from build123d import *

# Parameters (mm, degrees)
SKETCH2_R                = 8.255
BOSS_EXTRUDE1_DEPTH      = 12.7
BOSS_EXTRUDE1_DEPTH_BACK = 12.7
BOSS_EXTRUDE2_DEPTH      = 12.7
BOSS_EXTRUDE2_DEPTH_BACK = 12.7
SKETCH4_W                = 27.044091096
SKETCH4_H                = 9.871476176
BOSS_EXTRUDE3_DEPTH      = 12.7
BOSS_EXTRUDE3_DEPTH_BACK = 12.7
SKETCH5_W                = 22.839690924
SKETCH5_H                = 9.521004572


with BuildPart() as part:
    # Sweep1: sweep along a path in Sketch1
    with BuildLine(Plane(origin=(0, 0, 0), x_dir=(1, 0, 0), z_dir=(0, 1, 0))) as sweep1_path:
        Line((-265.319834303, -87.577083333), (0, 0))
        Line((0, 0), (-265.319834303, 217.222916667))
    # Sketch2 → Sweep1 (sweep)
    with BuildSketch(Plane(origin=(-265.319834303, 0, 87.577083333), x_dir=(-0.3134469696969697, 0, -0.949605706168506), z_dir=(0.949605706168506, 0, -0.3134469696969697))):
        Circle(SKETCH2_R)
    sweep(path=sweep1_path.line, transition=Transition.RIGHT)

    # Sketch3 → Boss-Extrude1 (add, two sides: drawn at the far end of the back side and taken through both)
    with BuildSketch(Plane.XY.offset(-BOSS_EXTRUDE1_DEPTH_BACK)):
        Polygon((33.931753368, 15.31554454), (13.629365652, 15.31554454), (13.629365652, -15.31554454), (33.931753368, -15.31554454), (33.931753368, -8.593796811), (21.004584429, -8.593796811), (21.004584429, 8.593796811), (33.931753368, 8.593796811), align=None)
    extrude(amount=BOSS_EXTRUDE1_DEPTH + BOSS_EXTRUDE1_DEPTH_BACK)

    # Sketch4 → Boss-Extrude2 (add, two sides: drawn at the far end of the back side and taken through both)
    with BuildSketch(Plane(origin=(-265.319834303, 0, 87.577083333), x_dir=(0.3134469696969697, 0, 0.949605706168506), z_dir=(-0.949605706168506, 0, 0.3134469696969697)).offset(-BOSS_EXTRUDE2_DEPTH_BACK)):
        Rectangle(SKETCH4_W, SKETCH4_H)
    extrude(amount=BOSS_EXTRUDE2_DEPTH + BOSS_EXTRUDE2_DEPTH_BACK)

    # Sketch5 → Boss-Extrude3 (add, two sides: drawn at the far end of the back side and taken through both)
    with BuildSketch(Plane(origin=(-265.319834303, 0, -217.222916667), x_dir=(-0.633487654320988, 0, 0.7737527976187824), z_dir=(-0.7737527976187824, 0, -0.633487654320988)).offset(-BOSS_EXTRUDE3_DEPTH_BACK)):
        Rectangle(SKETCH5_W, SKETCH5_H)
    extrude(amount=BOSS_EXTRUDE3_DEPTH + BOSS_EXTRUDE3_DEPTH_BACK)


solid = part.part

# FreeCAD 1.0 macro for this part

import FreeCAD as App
import Part
import Sketcher

V = App.Vector
Q = App.Units.Quantity

doc = App.newDocument("Part")
params = doc.addObject("Spreadsheet::Sheet", "Params")
for row, (alias, value) in enumerate([
    ("sketch1_diameter", "0.65 in"),
    ("sketch2_length", "11 in"),
    ("sketch2_length2", "13.5 in"),
    ("pad1_length", "0.5 in"),
    ("pad1_length2", "0.5 in"),
    ("pad2_length", "0.5 in"),
    ("pad2_length2", "0.5 in"),
    ("pad3_length", "0.5 in"),
    ("pad3_length2", "0.5 in"),
], start=1):
    params.set(f"A{row}", alias)
    params.set(f"B{row}", "=" + value)
    params.setAlias(f"B{row}", alias)

body = doc.addObject("PartDesign::Body", "Body")

sketch1 = doc.addObject("Sketcher::SketchObject", "Sketch")
body.addObject(sketch1)
sketch1.Placement = App.Placement(V(-265.319834, 0, 87.577083), App.Rotation(V(-0.31344697, 0, -0.949605706), V(0, 1, 0), V(0.949605706, 0, -0.31344697), "ZXY"))
sketch1.addGeometry(Part.Circle(V(0, 0, 0), V(0, 0, 1), 8.255), False)
sketch1.addConstraint(Sketcher.Constraint("Coincident", 0, 3, -1, 1))
sketch1.addConstraint(Sketcher.Constraint("Diameter", 0, Q("0.65 in")))
sketch1.setExpression("Constraints[1]", "Params.sketch1_diameter")

sketch2 = doc.addObject("Sketcher::SketchObject", "Sketch001")
body.addObject(sketch2)
sketch2.AttachmentSupport = (doc.XZ_Plane, [""])
sketch2.MapMode = "FlatFace"
sketch2.addGeometry(Part.LineSegment(V(-265.319834, 87.577083, 0), V(0, 0, 0)), False)
sketch2.addGeometry(Part.LineSegment(V(0, 0, 0), V(-265.319834, -217.222917, 0)), False)
sketch2.addConstraint(Sketcher.Constraint("Coincident", 0, 2, 1, 1))
sketch2.addConstraint(Sketcher.Constraint("Coincident", 0, 2, -1, 1))
sketch2.addConstraint(Sketcher.Constraint("Vertical", 0, 1, 1, 2))
sketch2.addConstraint(Sketcher.Constraint("Distance", 0, Q("11 in")))
sketch2.addConstraint(Sketcher.Constraint("DistanceY", 1, 2, 0, 1, Q("12 in")))
sketch2.addConstraint(Sketcher.Constraint("Distance", 1, Q("13.5 in")))
sketch2.setExpression("Constraints[3]", "Params.sketch2_length")
sketch2.setExpression("Constraints[5]", "Params.sketch2_length2")
doc.recompute()

additivepipe = doc.addObject("PartDesign::AdditivePipe", "AdditivePipe")
body.addObject(additivepipe)
additivepipe.Profile = sketch1
additivepipe.Spine = (sketch2, ["Edge1", "Edge2"])
additivepipe.Transition = "Right corner"

sketch3 = doc.addObject("Sketcher::SketchObject", "Sketch002")
body.addObject(sketch3)
sketch3.AttachmentSupport = (doc.XY_Plane, [""])
sketch3.MapMode = "FlatFace"
sketch3.addGeometry(Part.LineSegment(V(33.931753, 15.315545, 0), V(13.629366, 15.315545, 0)), False)
sketch3.addGeometry(Part.LineSegment(V(13.629366, 15.315545, 0), V(13.629366, -15.315545, 0)), False)
sketch3.addGeometry(Part.LineSegment(V(13.629366, -15.315545, 0), V(33.931753, -15.315545, 0)), False)
sketch3.addGeometry(Part.LineSegment(V(33.931753, -15.315545, 0), V(33.931753, -8.593797, 0)), False)
sketch3.addGeometry(Part.LineSegment(V(33.931753, -8.593797, 0), V(21.004584, -8.593797, 0)), False)
sketch3.addGeometry(Part.LineSegment(V(21.004584, -8.593797, 0), V(21.004584, 8.593797, 0)), False)
sketch3.addGeometry(Part.LineSegment(V(21.004584, 8.593797, 0), V(33.931753, 8.593797, 0)), False)
sketch3.addGeometry(Part.LineSegment(V(33.931753, 8.593797, 0), V(33.931753, 15.315545, 0)), False)
sketch3.addConstraint(Sketcher.Constraint("Coincident", 0, 2, 1, 1))
sketch3.addConstraint(Sketcher.Constraint("Coincident", 1, 2, 2, 1))
sketch3.addConstraint(Sketcher.Constraint("Coincident", 2, 2, 3, 1))
sketch3.addConstraint(Sketcher.Constraint("Coincident", 3, 2, 4, 1))
sketch3.addConstraint(Sketcher.Constraint("Coincident", 4, 2, 5, 1))
sketch3.addConstraint(Sketcher.Constraint("Coincident", 5, 2, 6, 1))
sketch3.addConstraint(Sketcher.Constraint("Coincident", 6, 2, 7, 1))
sketch3.addConstraint(Sketcher.Constraint("Coincident", 7, 2, 0, 1))
sketch3.addConstraint(Sketcher.Constraint("Horizontal", 0))
sketch3.addConstraint(Sketcher.Constraint("Vertical", 1))
sketch3.addConstraint(Sketcher.Constraint("Horizontal", 2))
sketch3.addConstraint(Sketcher.Constraint("Vertical", 3))
sketch3.addConstraint(Sketcher.Constraint("Horizontal", 4))
sketch3.addConstraint(Sketcher.Constraint("Vertical", 5))
sketch3.addConstraint(Sketcher.Constraint("Horizontal", 6))
sketch3.addConstraint(Sketcher.Constraint("Vertical", 7))
sketch3.addConstraint(Sketcher.Constraint("Symmetric", 3, 2, 6, 2, -1))
sketch3.addConstraint(Sketcher.Constraint("Equal", 3, 7))
sketch3.addConstraint(Sketcher.Constraint("DistanceX", 4, 2, 4, 1, Q("12.927169 mm")))
sketch3.addConstraint(Sketcher.Constraint("DistanceY", 1, 2, 1, 1, Q("30.631089 mm")))
sketch3.addConstraint(Sketcher.Constraint("DistanceX", 0, 2, 0, 1, Q("20.302388 mm")))
sketch3.addConstraint(Sketcher.Constraint("DistanceY", 3, 1, 3, 2, Q("6.721748 mm")))
sketch3.addConstraint(Sketcher.Constraint("DistanceX", -1, 1, 0, 2, Q("13.629366 mm")))
pad1 = doc.addObject("PartDesign::Pad", "Pad")
body.addObject(pad1)
pad1.Profile = sketch3
pad1.Type = "TwoLengths"
pad1.setExpression("Length", "Params.pad1_length")
pad1.setExpression("Length2", "Params.pad1_length2")

sketch4 = doc.addObject("Sketcher::SketchObject", "Sketch003")
body.addObject(sketch4)
sketch4.Placement = App.Placement(V(-265.319834, 0, 87.577083), App.Rotation(V(0.31344697, 0, 0.949605706), V(0, 1, 0), V(-0.949605706, 0, 0.31344697), "ZXY"))
sketch4.addGeometry(Part.LineSegment(V(-13.522046, 4.935738, 0), V(-13.522046, -4.935738, 0)), False)
sketch4.addGeometry(Part.LineSegment(V(-13.522046, -4.935738, 0), V(13.522046, -4.935738, 0)), False)
sketch4.addGeometry(Part.LineSegment(V(13.522046, -4.935738, 0), V(13.522046, 4.935738, 0)), False)
sketch4.addGeometry(Part.LineSegment(V(13.522046, 4.935738, 0), V(-13.522046, 4.935738, 0)), False)
sketch4.addConstraint(Sketcher.Constraint("Coincident", 0, 2, 1, 1))
sketch4.addConstraint(Sketcher.Constraint("Coincident", 1, 2, 2, 1))
sketch4.addConstraint(Sketcher.Constraint("Coincident", 2, 2, 3, 1))
sketch4.addConstraint(Sketcher.Constraint("Coincident", 3, 2, 0, 1))
sketch4.addConstraint(Sketcher.Constraint("Vertical", 0))
sketch4.addConstraint(Sketcher.Constraint("Horizontal", 1))
sketch4.addConstraint(Sketcher.Constraint("Vertical", 2))
sketch4.addConstraint(Sketcher.Constraint("Horizontal", 3))
sketch4.addConstraint(Sketcher.Constraint("Symmetric", 0, 2, 2, 2, -1, 1))
sketch4.addConstraint(Sketcher.Constraint("DistanceX", 1, 1, 1, 2, Q("27.044091 mm")))
sketch4.addConstraint(Sketcher.Constraint("DistanceY", 0, 2, 0, 1, Q("9.871476 mm")))
pad2 = doc.addObject("PartDesign::Pad", "Pad001")
body.addObject(pad2)
pad2.Profile = sketch4
pad2.Type = "TwoLengths"
pad2.setExpression("Length", "Params.pad2_length")
pad2.setExpression("Length2", "Params.pad2_length2")

sketch5 = doc.addObject("Sketcher::SketchObject", "Sketch004")
body.addObject(sketch5)
sketch5.Placement = App.Placement(V(-265.319834, 0, -217.222917), App.Rotation(V(-0.633487654, 0, 0.773752798), V(0, 1, 0), V(-0.773752798, 0, -0.633487654), "ZXY"))
sketch5.addGeometry(Part.LineSegment(V(-11.419845, 4.760502, 0), V(-11.419845, -4.760502, 0)), False)
sketch5.addGeometry(Part.LineSegment(V(-11.419845, -4.760502, 0), V(11.419845, -4.760502, 0)), False)
sketch5.addGeometry(Part.LineSegment(V(11.419845, -4.760502, 0), V(11.419845, 4.760502, 0)), False)
sketch5.addGeometry(Part.LineSegment(V(11.419845, 4.760502, 0), V(-11.419845, 4.760502, 0)), False)
sketch5.addConstraint(Sketcher.Constraint("Coincident", 0, 2, 1, 1))
sketch5.addConstraint(Sketcher.Constraint("Coincident", 1, 2, 2, 1))
sketch5.addConstraint(Sketcher.Constraint("Coincident", 2, 2, 3, 1))
sketch5.addConstraint(Sketcher.Constraint("Coincident", 3, 2, 0, 1))
sketch5.addConstraint(Sketcher.Constraint("Vertical", 0))
sketch5.addConstraint(Sketcher.Constraint("Horizontal", 1))
sketch5.addConstraint(Sketcher.Constraint("Vertical", 2))
sketch5.addConstraint(Sketcher.Constraint("Horizontal", 3))
sketch5.addConstraint(Sketcher.Constraint("Symmetric", 0, 2, 2, 2, -1, 1))
sketch5.addConstraint(Sketcher.Constraint("DistanceX", 1, 1, 1, 2, Q("22.839691 mm")))
sketch5.addConstraint(Sketcher.Constraint("DistanceY", 0, 2, 0, 1, Q("9.521005 mm")))
pad3 = doc.addObject("PartDesign::Pad", "Pad002")
body.addObject(pad3)
pad3.Profile = sketch5
pad3.Type = "TwoLengths"
pad3.setExpression("Length", "Params.pad3_length")
pad3.setExpression("Length2", "Params.pad3_length2")

doc.recompute()
